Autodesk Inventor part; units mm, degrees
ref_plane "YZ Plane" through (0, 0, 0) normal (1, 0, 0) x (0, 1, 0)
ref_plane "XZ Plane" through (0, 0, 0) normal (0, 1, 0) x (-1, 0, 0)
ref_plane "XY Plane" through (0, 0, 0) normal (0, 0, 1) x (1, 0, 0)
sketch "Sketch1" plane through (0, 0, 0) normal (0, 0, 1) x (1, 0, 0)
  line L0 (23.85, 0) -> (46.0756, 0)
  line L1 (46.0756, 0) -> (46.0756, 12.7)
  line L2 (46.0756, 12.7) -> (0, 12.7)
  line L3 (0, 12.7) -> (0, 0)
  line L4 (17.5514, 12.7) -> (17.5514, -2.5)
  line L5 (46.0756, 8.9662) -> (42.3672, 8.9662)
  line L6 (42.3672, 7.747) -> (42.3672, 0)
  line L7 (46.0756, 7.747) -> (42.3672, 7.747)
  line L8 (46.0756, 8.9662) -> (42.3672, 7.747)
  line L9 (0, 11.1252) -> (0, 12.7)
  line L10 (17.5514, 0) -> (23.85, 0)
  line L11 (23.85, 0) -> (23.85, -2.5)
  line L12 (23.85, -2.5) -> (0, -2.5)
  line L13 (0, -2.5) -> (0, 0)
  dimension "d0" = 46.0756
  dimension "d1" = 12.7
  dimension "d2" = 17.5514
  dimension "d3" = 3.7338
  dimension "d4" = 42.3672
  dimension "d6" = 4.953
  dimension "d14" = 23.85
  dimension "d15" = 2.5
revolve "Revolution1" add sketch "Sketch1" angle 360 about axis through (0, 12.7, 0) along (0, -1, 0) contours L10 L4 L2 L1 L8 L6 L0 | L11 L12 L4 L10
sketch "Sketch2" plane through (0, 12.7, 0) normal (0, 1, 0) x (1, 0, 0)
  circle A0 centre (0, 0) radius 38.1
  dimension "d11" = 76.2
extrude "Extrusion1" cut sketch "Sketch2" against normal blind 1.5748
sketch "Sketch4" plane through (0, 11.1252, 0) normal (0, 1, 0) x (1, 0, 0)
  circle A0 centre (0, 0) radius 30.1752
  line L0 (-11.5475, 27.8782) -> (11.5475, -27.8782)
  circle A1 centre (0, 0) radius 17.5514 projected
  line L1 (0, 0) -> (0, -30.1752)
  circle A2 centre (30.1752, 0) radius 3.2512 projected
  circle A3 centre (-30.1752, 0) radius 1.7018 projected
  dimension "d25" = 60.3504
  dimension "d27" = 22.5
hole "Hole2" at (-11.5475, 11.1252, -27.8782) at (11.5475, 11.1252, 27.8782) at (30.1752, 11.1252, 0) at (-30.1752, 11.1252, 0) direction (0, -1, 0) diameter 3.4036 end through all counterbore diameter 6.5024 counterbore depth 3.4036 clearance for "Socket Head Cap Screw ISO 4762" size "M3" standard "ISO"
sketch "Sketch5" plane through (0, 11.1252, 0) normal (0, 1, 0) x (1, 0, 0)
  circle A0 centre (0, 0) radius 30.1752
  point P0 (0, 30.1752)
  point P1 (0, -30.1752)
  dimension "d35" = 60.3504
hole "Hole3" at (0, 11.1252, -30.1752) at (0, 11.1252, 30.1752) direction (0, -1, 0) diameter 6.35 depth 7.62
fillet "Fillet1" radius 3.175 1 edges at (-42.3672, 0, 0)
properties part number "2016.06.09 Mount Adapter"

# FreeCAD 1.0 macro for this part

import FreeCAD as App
import Part
import Sketcher

V = App.Vector
Q = App.Units.Quantity


def edges_at(feature, points):
    """Names of the edges that pass closest to the given points."""
    edges = feature.Shape.Edges
    near = lambda p: min(range(len(edges)), key=lambda i: edges[i].distToShape(Part.Vertex(*p))[0])
    return sorted({f"Edge{near(p) + 1}" for p in points})

doc = App.newDocument("Part")
body = doc.addObject("PartDesign::Body", "Body")

# Sketch on XY plane
sketch1 = body.newObject("Sketcher::SketchObject", "Sketch")
sketch1.AttachmentSupport = (doc.getObject("XY_Plane"), [""])
sketch1.MapMode = "FlatFace"
sketch1.addGeometry([
    Part.LineSegment(V(17.5514, 12.7, 0), V(17.5514, -2.5, 0)),  # 0
    Part.LineSegment(V(17.5514, -2.5, 0), V(23.85, -2.5, 0)),  # 1
    Part.LineSegment(V(23.85, -2.5, 0), V(23.85, 0, 0)),  # 2
    Part.LineSegment(V(23.85, 0, 0), V(42.3672, 0, 0)),  # 3
    Part.LineSegment(V(42.3672, 0, 0), V(42.3672, 7.747, 0)),  # 4
    Part.LineSegment(V(42.3672, 7.747, 0), V(46.0756, 8.9662, 0)),  # 5
    Part.LineSegment(V(46.0756, 8.9662, 0), V(46.0756, 12.7, 0)),  # 6
    Part.LineSegment(V(46.0756, 12.7, 0), V(17.5514, 12.7, 0)),  # 7
], False)
sketch1.addConstraint([
    Sketcher.Constraint("Coincident", 0, 2, 1, 1),
    Sketcher.Constraint("Coincident", 1, 2, 2, 1),
    Sketcher.Constraint("Coincident", 2, 2, 3, 1),
    Sketcher.Constraint("Coincident", 3, 2, 4, 1),
    Sketcher.Constraint("Coincident", 4, 2, 5, 1),
    Sketcher.Constraint("Coincident", 5, 2, 6, 1),
    Sketcher.Constraint("Coincident", 6, 2, 7, 1),
    Sketcher.Constraint("Coincident", 7, 2, 0, 1),
    Sketcher.Constraint("Vertical", 0),
    Sketcher.Constraint("Horizontal", 1),
    Sketcher.Constraint("Vertical", 2),
    Sketcher.Constraint("Horizontal", 3),
    Sketcher.Constraint("Vertical", 4),
    Sketcher.Constraint("Vertical", 6),
    Sketcher.Constraint("Horizontal", 7),
    Sketcher.Constraint("PointOnObject", 2, 2, -1),
    Sketcher.Constraint("DistanceY", -1, 1, 6, 2, Q("0.5 in")),
    Sketcher.Constraint("DistanceY", 6, 1, 6, 2, Q("0.147 in")),
    Sketcher.Constraint("DistanceX", -1, 1, 0, 2, Q("0.691 in")),
    Sketcher.Constraint("DistanceX", -1, 1, 3, 2, Q("1.668 in")),
    Sketcher.Constraint("DistanceX", -1, 1, 5, 2, Q("1.814 in")),
    Sketcher.Constraint("DistanceY", 4, 2, 6, 2, Q("0.195 in")),
    Sketcher.Constraint("DistanceY", 2, 1, 2, 2, 2.5),
    Sketcher.Constraint("DistanceX", -1, 1, 1, 2, 23.85),
])
revolution = body.newObject("PartDesign::Revolution", "Revolution")
revolution.Profile = sketch1
revolution.ReferenceAxis = (sketch1, ["V_Axis"])
revolution.Angle = 360

# Sketch on XZ plane
sketch2 = body.newObject("Sketcher::SketchObject", "Sketch001")
sketch2.AttachmentSupport = (doc.getObject("XZ_Plane"), [""])
sketch2.MapMode = "FlatFace"
sketch2.AttachmentOffset = App.Placement(V(0, 0, -0.5 * 25.4), App.Rotation())
sketch2.addGeometry(Part.Circle(V(0, 0, 0), V(0, 0, 1), 38.1), False)
sketch2.addConstraint([
    Sketcher.Constraint("Coincident", 0, 3, -1, 1),
    Sketcher.Constraint("Diameter", 0, Q("3 in")),
])
pocket1 = body.newObject("PartDesign::Pocket", "Pocket")
pocket1.Profile = sketch2
pocket1.Length = Q("0.062 in")
pocket1.Reversed = True

# Sketch on XZ plane
sketch3 = body.newObject("Sketcher::SketchObject", "Sketch002")
sketch3.AttachmentSupport = (doc.getObject("XZ_Plane"), [""])
sketch3.MapMode = "FlatFace"
sketch3.AttachmentOffset = App.Placement(V(0, 0, -0.438 * 25.4), App.Rotation())
sketch3.addGeometry([
    Part.Circle(V(-11.5475, -27.8782, 0), V(0, 0, 1), 1.7018),
    Part.Circle(V(11.5475, 27.8782, 0), V(0, 0, 1), 1.7018),
    Part.Circle(V(30.1752, 0, 0), V(0, 0, 1), 1.7018),
    Part.Circle(V(-30.1752, 0, 0), V(0, 0, 1), 1.7018),
], False)
sketch3.addConstraint([
    Sketcher.Constraint("Equal", 0, 1),
    Sketcher.Constraint("Equal", 1, 2),
    Sketcher.Constraint("Equal", 2, 3),
    Sketcher.Constraint("Symmetric", 0, 3, 1, 3, -1, 1),
    Sketcher.Constraint("Symmetric", 2, 3, 3, 3, -1, 1),
    Sketcher.Constraint("PointOnObject", 2, 3, -1),
    Sketcher.Constraint("Diameter", 0, Q("0.134 in")),
    Sketcher.Constraint("DistanceX", -1, 1, 2, 3, Q("1.188 in")),
    Sketcher.Constraint("DistanceX", 0, 3, -1, 1, 11.5475),
    Sketcher.Constraint("DistanceY", 0, 3, -1, 1, 27.8782),
])
doc.recompute()
hole = body.newObject("PartDesign::Hole", "Hole")
hole.Profile = sketch3
hole.ThreadType = "None"
hole.Diameter = Q("0.134 in")
hole.DepthType = "ThroughAll"
hole.HoleCutType = "Counterbore"
hole.HoleCutDiameter = Q("0.256 in")
hole.HoleCutDepth = Q("0.134 in")
hole.Reversed = True

# Sketch on XZ plane
sketch4 = body.newObject("Sketcher::SketchObject", "Sketch003")
sketch4.AttachmentSupport = (doc.getObject("XZ_Plane"), [""])
sketch4.MapMode = "FlatFace"
sketch4.AttachmentOffset = App.Placement(V(0, 0, -0.438 * 25.4), App.Rotation())
sketch4.addGeometry([
    Part.Circle(V(0, -30.1752, 0), V(0, 0, 1), 3.175),
    Part.Circle(V(0, 30.1752, 0), V(0, 0, 1), 3.175),
], False)
sketch4.addConstraint([
    Sketcher.Constraint("Equal", 0, 1),
    Sketcher.Constraint("Symmetric", 0, 3, 1, 3, -1, 1),
    Sketcher.Constraint("PointOnObject", 0, 3, -2),
    Sketcher.Constraint("Diameter", 0, Q("0.25 in")),
    Sketcher.Constraint("DistanceY", 0, 3, -1, 1, Q("1.188 in")),
])
doc.recompute()
hole2 = body.newObject("PartDesign::Hole", "Hole001")
hole2.Profile = sketch4
hole2.ThreadType = "None"
hole2.Diameter = Q("0.25 in")
hole2.DepthType = "Dimension"
hole2.Depth = Q("0.3 in")
hole2.DrillPoint = "Flat"
hole2.Reversed = True
doc.recompute()

fillet = body.newObject("PartDesign::Fillet", "Fillet")
fillet.Base = (hole2, edges_at(hole2, [(-42.367, 0, 0)]))
fillet.Radius = Q("0.125 in")

doc.recompute()
